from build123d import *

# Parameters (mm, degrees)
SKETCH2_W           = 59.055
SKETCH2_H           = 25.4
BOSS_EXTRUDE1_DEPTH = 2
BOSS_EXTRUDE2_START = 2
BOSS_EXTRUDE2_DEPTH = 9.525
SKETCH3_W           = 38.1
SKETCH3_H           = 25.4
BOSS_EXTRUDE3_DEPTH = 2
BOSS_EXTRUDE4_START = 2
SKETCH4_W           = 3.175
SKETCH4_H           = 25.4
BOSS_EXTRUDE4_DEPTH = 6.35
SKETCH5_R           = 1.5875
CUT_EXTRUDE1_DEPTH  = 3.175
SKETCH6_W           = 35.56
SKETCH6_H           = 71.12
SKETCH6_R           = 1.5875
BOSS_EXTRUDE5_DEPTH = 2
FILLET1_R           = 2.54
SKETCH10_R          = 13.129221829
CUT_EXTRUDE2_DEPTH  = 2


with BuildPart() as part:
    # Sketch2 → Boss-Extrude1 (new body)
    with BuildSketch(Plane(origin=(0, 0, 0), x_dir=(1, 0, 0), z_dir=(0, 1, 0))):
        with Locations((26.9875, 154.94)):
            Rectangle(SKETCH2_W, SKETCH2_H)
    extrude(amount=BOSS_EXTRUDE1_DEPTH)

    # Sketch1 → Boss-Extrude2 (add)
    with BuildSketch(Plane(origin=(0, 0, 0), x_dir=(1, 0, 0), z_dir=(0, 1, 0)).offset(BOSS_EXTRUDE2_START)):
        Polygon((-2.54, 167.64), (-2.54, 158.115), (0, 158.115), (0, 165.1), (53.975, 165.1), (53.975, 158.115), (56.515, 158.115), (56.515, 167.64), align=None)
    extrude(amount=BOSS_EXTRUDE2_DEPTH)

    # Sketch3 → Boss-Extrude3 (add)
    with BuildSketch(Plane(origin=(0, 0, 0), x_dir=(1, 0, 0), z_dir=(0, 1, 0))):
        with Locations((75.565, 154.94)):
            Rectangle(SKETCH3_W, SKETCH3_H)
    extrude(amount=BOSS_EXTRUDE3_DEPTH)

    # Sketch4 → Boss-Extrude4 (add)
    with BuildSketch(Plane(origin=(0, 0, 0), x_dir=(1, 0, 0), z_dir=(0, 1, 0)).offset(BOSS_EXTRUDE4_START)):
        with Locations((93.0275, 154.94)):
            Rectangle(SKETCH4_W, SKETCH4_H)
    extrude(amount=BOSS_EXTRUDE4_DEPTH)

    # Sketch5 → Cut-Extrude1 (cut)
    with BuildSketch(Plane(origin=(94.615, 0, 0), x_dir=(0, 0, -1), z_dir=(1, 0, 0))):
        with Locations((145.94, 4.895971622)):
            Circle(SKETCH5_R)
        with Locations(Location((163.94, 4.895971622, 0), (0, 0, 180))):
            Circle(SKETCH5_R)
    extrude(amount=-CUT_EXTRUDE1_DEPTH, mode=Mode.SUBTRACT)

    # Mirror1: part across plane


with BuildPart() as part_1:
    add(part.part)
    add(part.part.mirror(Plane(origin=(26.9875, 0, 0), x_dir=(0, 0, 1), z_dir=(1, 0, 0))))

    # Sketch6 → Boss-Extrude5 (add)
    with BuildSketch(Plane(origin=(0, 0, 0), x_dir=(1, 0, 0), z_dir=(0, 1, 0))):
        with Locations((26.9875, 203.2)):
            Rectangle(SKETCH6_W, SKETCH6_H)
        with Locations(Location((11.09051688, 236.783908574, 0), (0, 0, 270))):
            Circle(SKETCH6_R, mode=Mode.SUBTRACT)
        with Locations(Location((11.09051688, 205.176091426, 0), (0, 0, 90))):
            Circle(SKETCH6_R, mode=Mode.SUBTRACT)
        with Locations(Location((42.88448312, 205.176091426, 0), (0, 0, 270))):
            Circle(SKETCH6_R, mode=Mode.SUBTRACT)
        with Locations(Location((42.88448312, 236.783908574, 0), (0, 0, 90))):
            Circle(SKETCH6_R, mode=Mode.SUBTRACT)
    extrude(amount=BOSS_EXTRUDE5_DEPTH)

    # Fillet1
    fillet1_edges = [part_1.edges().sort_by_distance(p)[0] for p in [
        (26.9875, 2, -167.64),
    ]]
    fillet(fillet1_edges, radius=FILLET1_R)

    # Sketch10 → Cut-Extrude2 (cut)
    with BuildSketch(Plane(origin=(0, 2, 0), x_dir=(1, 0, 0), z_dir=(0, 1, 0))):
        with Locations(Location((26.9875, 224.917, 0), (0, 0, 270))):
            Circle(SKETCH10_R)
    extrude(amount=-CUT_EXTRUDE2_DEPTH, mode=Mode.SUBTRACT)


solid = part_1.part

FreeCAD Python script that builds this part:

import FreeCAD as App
import Part
import Sketcher

V = App.Vector
Q = App.Units.Quantity


def edges_at(feature, points):
    """Names of the edges that pass closest to the given points."""
    edges = feature.Shape.Edges
    near = lambda p: min(range(len(edges)), key=lambda i: edges[i].distToShape(Part.Vertex(*p))[0])
    return sorted({f"Edge{near(p) + 1}" for p in points})

doc = App.newDocument("Part")
params = doc.addObject("Spreadsheet::Sheet", "Params")
for row, (alias, value) in enumerate([
    ("sketch1_height", "1 in"),
    ("sketch1_width", "2.325 in"),
    ("pad1_length", "2 mm"),
    ("sketch2_width", "0.1 in"),
    ("sketch2_width2", "2.125 in"),
    ("sketch2_height", "0.375 in"),
    ("pad2_length", "0.375 in"),
    ("sketch3_height", "1 in"),
    ("sketch3_width", "1.5 in"),
    ("pad3_length", "2 mm"),
    ("sketch4_height", "1 in"),
    ("sketch4_width", "0.125 in"),
    ("pad4_length", "0.25 in"),
    ("sketch5_diameter", "0.125 in"),
    ("pocket1_length", "0.125 in"),
    ("sketch6_diameter", "0.125 in"),
    ("sketch6_width", "1.4 in"),
    ("sketch6_height", "2.8 in"),
    ("pad5_length", "2 mm"),
    ("fillet_radius", "0.1 in"),
    ("pocket2_length", "2 mm"),
], start=1):
    params.set(f"A{row}", alias)
    params.set(f"B{row}", "=" + value)
    params.setAlias(f"B{row}", alias)

body = doc.addObject("PartDesign::Body", "Body")

# Sketch on XZ plane
sketch1 = body.newObject("Sketcher::SketchObject", "Sketch")
sketch1.AttachmentSupport = (doc.getObject("XZ_Plane"), [""])
sketch1.MapMode = "FlatFace"
sketch1.addGeometry(Part.LineSegment(V(-3, -168, 0), V(-3, -142, 0)), False)
sketch1.addGeometry(Part.LineSegment(V(-3, -142, 0), V(57, -142, 0)), False)
sketch1.addGeometry(Part.LineSegment(V(57, -142, 0), V(57, -168, 0)), False)
sketch1.addGeometry(Part.LineSegment(V(57, -168, 0), V(-3, -168, 0)), False)
sketch1.addConstraint(Sketcher.Constraint("Coincident", 0, 2, 1, 1))
sketch1.addConstraint(Sketcher.Constraint("Coincident", 1, 2, 2, 1))
sketch1.addConstraint(Sketcher.Constraint("Coincident", 2, 2, 3, 1))
sketch1.addConstraint(Sketcher.Constraint("Coincident", 3, 2, 0, 1))
sketch1.addConstraint(Sketcher.Constraint("Vertical", 0))
sketch1.addConstraint(Sketcher.Constraint("Horizontal", 1))
sketch1.addConstraint(Sketcher.Constraint("Vertical", 2))
sketch1.addConstraint(Sketcher.Constraint("Horizontal", 3))
sketch1.addConstraint(Sketcher.Constraint("DistanceY", 0, 1, 0, 2, Q("1 in")))
sketch1.addConstraint(Sketcher.Constraint("DistanceX", 0, 2, -1, 1, Q("0.1 in")))
sketch1.addConstraint(Sketcher.Constraint("DistanceY", 0, 2, -1, 1, Q("5.6 in")))
sketch1.addConstraint(Sketcher.Constraint("DistanceX", 1, 1, 1, 2, Q("2.325 in")))
sketch1.setExpression("Constraints[8]", "Params.sketch1_height")
sketch1.setExpression("Constraints[11]", "Params.sketch1_width")
pad1 = body.newObject("PartDesign::Pad", "Pad")
pad1.Profile = sketch1
pad1.setExpression("Length", "Params.pad1_length")
pad1.Reversed = True

# Sketch on XZ plane
sketch2 = body.newObject("Sketcher::SketchObject", "Sketch001")
sketch2.AttachmentSupport = (doc.getObject("XZ_Plane"), [""])
sketch2.MapMode = "FlatFace"
sketch2.AttachmentOffset = App.Placement(V(0, 0, -2), App.Rotation())
sketch2.addGeometry(Part.LineSegment(V(-2.5, -167.6, 0), V(-2.5, -158.1, 0)), False)
sketch2.addGeometry(Part.LineSegment(V(-2.5, -158.1, 0), V(0, -158.1, 0)), False)
sketch2.addGeometry(Part.LineSegment(V(0, -158.1, 0), V(0, -165.1, 0)), False)
sketch2.addGeometry(Part.LineSegment(V(0, -165.1, 0), V(54, -165.1, 0)), False)
sketch2.addGeometry(Part.LineSegment(V(54, -165.1, 0), V(54, -158.1, 0)), False)
sketch2.addGeometry(Part.LineSegment(V(54, -158.1, 0), V(56.5, -158.1, 0)), False)
sketch2.addGeometry(Part.LineSegment(V(56.5, -158.1, 0), V(56.5, -167.6, 0)), False)
sketch2.addGeometry(Part.LineSegment(V(56.5, -167.6, 0), V(-2.5, -167.6, 0)), False)
sketch2.addConstraint(Sketcher.Constraint("Coincident", 0, 2, 1, 1))
sketch2.addConstraint(Sketcher.Constraint("Coincident", 1, 2, 2, 1))
sketch2.addConstraint(Sketcher.Constraint("Coincident", 2, 2, 3, 1))
sketch2.addConstraint(Sketcher.Constraint("Coincident", 3, 2, 4, 1))
sketch2.addConstraint(Sketcher.Constraint("Coincident", 4, 2, 5, 1))
sketch2.addConstraint(Sketcher.Constraint("Coincident", 5, 2, 6, 1))
sketch2.addConstraint(Sketcher.Constraint("Coincident", 6, 2, 7, 1))
sketch2.addConstraint(Sketcher.Constraint("Coincident", 7, 2, 0, 1))
sketch2.addConstraint(Sketcher.Constraint("Vertical", 0))
sketch2.addConstraint(Sketcher.Constraint("Horizontal", 1))
sketch2.addConstraint(Sketcher.Constraint("Vertical", 2))
sketch2.addConstraint(Sketcher.Constraint("Horizontal", 3))
sketch2.addConstraint(Sketcher.Constraint("Vertical", 4))
sketch2.addConstraint(Sketcher.Constraint("Horizontal", 5))
sketch2.addConstraint(Sketcher.Constraint("Vertical", 6))
sketch2.addConstraint(Sketcher.Constraint("Horizontal", 7))
sketch2.addConstraint(Sketcher.Constraint("PointOnObject", 1, 2, -2))
sketch2.addConstraint(Sketcher.Constraint("Horizontal", 1, 2, 4, 2))
sketch2.addConstraint(Sketcher.Constraint("Equal", 1, 5))
sketch2.addConstraint(Sketcher.Constraint("DistanceX", 1, 1, 1, 2, Q("0.1 in")))
sketch2.addConstraint(Sketcher.Constraint("DistanceY", 2, 2, -1, 1, Q("6.5 in")))
sketch2.addConstraint(Sketcher.Constraint("DistanceY", 6, 2, -1, 1, Q("6.6 in")))
sketch2.addConstraint(Sketcher.Constraint("DistanceX", 3, 1, 3, 2, Q("2.125 in")))
sketch2.addConstraint(Sketcher.Constraint("DistanceY", 0, 1, 0, 2, Q("0.375 in")))
sketch2.setExpression("Constraints[19]", "Params.sketch2_width")
sketch2.setExpression("Constraints[22]", "Params.sketch2_width2")
sketch2.setExpression("Constraints[23]", "Params.sketch2_height")
pad2 = body.newObject("PartDesign::Pad", "Pad001")
pad2.Profile = sketch2
pad2.setExpression("Length", "Params.pad2_length")
pad2.Reversed = True

# Sketch on XZ plane
sketch3 = body.newObject("Sketcher::SketchObject", "Sketch002")
sketch3.AttachmentSupport = (doc.getObject("XZ_Plane"), [""])
sketch3.MapMode = "FlatFace"
sketch3.addGeometry(Part.LineSegment(V(57, -168, 0), V(57, -142, 0)), False)
sketch3.addGeometry(Part.LineSegment(V(57, -142, 0), V(95, -142, 0)), False)
sketch3.addGeometry(Part.LineSegment(V(95, -142, 0), V(95, -168, 0)), False)
sketch3.addGeometry(Part.LineSegment(V(95, -168, 0), V(57, -168, 0)), False)
sketch3.addConstraint(Sketcher.Constraint("Coincident", 0, 2, 1, 1))
sketch3.addConstraint(Sketcher.Constraint("Coincident", 1, 2, 2, 1))
sketch3.addConstraint(Sketcher.Constraint("Coincident", 2, 2, 3, 1))
sketch3.addConstraint(Sketcher.Constraint("Coincident", 3, 2, 0, 1))
sketch3.addConstraint(Sketcher.Constraint("Vertical", 0))
sketch3.addConstraint(Sketcher.Constraint("Horizontal", 1))
sketch3.addConstraint(Sketcher.Constraint("Vertical", 2))
sketch3.addConstraint(Sketcher.Constraint("Horizontal", 3))
sketch3.addConstraint(Sketcher.Constraint("DistanceY", 0, 1, 0, 2, Q("1 in")))
sketch3.addConstraint(Sketcher.Constraint("DistanceX", 1, 1, 1, 2, Q("1.5 in")))
sketch3.addConstraint(Sketcher.Constraint("DistanceY", 0, 2, -1, 1, Q("5.6 in")))
sketch3.addConstraint(Sketcher.Constraint("DistanceX", -1, 1, 0, 2, Q("2.225 in")))
sketch3.setExpression("Constraints[8]", "Params.sketch3_height")
sketch3.setExpression("Constraints[9]", "Params.sketch3_width")
pad3 = body.newObject("PartDesign::Pad", "Pad002")
pad3.Profile = sketch3
pad3.setExpression("Length", "Params.pad3_length")
pad3.Reversed = True

# Sketch on XZ plane
sketch4 = body.newObject("Sketcher::SketchObject", "Sketch003")
sketch4.AttachmentSupport = (doc.getObject("XZ_Plane"), [""])
sketch4.MapMode = "FlatFace"
sketch4.AttachmentOffset = App.Placement(V(0, 0, -2), App.Rotation())
sketch4.addGeometry(Part.LineSegment(V(91.4, -167.6, 0), V(91.4, -142.2, 0)), False)
sketch4.addGeometry(Part.LineSegment(V(91.4, -142.2, 0), V(94.6, -142.2, 0)), False)
sketch4.addGeometry(Part.LineSegment(V(94.6, -142.2, 0), V(94.6, -167.6, 0)), False)
sketch4.addGeometry(Part.LineSegment(V(94.6, -167.6, 0), V(91.4, -167.6, 0)), False)
sketch4.addConstraint(Sketcher.Constraint("Coincident", 0, 2, 1, 1))
sketch4.addConstraint(Sketcher.Constraint("Coincident", 1, 2, 2, 1))
sketch4.addConstraint(Sketcher.Constraint("Coincident", 2, 2, 3, 1))
sketch4.addConstraint(Sketcher.Constraint("Coincident", 3, 2, 0, 1))
sketch4.addConstraint(Sketcher.Constraint("Vertical", 0))
sketch4.addConstraint(Sketcher.Constraint("Horizontal", 1))
sketch4.addConstraint(Sketcher.Constraint("Vertical", 2))
sketch4.addConstraint(Sketcher.Constraint("Horizontal", 3))
sketch4.addConstraint(Sketcher.Constraint("DistanceY", 0, 1, 0, 2, Q("1 in")))
sketch4.addConstraint(Sketcher.Constraint("DistanceX", -1, 1, 0, 2, Q("3.6 in")))
sketch4.addConstraint(Sketcher.Constraint("DistanceY", 0, 2, -1, 1, Q("5.6 in")))
sketch4.addConstraint(Sketcher.Constraint("DistanceX", 1, 1, 1, 2, Q("0.125 in")))
sketch4.setExpression("Constraints[8]", "Params.sketch4_height")
sketch4.setExpression("Constraints[11]", "Params.sketch4_width")
pad4 = body.newObject("PartDesign::Pad", "Pad003")
pad4.Profile = sketch4
pad4.setExpression("Length", "Params.pad4_length")
pad4.Reversed = True

# Sketch on YZ plane
sketch5 = body.newObject("Sketcher::SketchObject", "Sketch004")
sketch5.AttachmentSupport = (doc.getObject("YZ_Plane"), [""])
sketch5.MapMode = "FlatFace"
sketch5.AttachmentOffset = App.Placement(V(0, 0, 3.725 * 25.4), App.Rotation())
sketch5.addGeometry(Part.Circle(V(4.9, -145.9, 0), V(0, 0, 1), 1.6), False)
sketch5.addGeometry(Part.Circle(V(4.9, -163.9, 0), V(0, 0, 1), 1.6), False)
sketch5.addConstraint(Sketcher.Constraint("Equal", 0, 1))
sketch5.addConstraint(Sketcher.Constraint("Vertical", 0, 3, 1, 3))
sketch5.addConstraint(Sketcher.Constraint("Diameter", 0, Q("0.125 in")))
sketch5.addConstraint(Sketcher.Constraint("DistanceY", 0, 3, -1, 1, Q("145.94 mm")))
sketch5.addConstraint(Sketcher.Constraint("DistanceY", 1, 3, -1, 1, Q("163.94 mm")))
sketch5.addConstraint(Sketcher.Constraint("DistanceX", -1, 1, 0, 3, Q("4.895972 mm")))
sketch5.setExpression("Constraints[2]", "Params.sketch5_diameter")
pocket1 = body.newObject("PartDesign::Pocket", "Pocket")
pocket1.Profile = sketch5
pocket1.setExpression("Length", "Params.pocket1_length")
body2 = doc.addObject("PartDesign::Body", "Body001")
doc.recompute()

body2.BaseFeature = body
doc.recompute()

mirroring = doc.addObject("Part::Mirroring", "Mirroring")
mirroring.Source = body
mirroring.Base = V(26.9875, 0, 0)
mirroring.Normal = V(1, 0, 0)
body3 = doc.addObject("PartDesign::Body", "Body002")
body3.BaseFeature = mirroring
boolean = body2.newObject("PartDesign::Boolean", "Boolean")
boolean.Type = "Fuse"
boolean.addObjects([body3])
doc.recompute()

# Sketch on XZ plane
sketch6 = body2.newObject("Sketcher::SketchObject", "Sketch005")
sketch6.AttachmentSupport = (doc.getObject("XZ_Plane001"), [""])
sketch6.MapMode = "FlatFace"
sketch6.addGeometry(Part.LineSegment(V(9.2, -238.8, 0), V(9.2, -167.6, 0)), False)
sketch6.addGeometry(Part.LineSegment(V(9.2, -167.6, 0), V(44.8, -167.6, 0)), False)
sketch6.addGeometry(Part.LineSegment(V(44.8, -167.6, 0), V(44.8, -238.8, 0)), False)
sketch6.addGeometry(Part.LineSegment(V(44.8, -238.8, 0), V(9.2, -238.8, 0)), False)
sketch6.addGeometry(Part.Circle(V(11.1, -205.2, 0), V(0, 0, 1), 1.6), False)
sketch6.addGeometry(Part.Circle(V(42.9, -205.2, 0), V(0, 0, 1), 1.6), False)
sketch6.addGeometry(Part.Circle(V(11.1, -236.8, 0), V(0, 0, 1), 1.6), False)
sketch6.addGeometry(Part.Circle(V(42.9, -236.8, 0), V(0, 0, 1), 1.6), False)
sketch6.addConstraint(Sketcher.Constraint("Coincident", 0, 2, 1, 1))
sketch6.addConstraint(Sketcher.Constraint("Coincident", 1, 2, 2, 1))
sketch6.addConstraint(Sketcher.Constraint("Coincident", 2, 2, 3, 1))
sketch6.addConstraint(Sketcher.Constraint("Coincident", 3, 2, 0, 1))
sketch6.addConstraint(Sketcher.Constraint("Vertical", 0))
sketch6.addConstraint(Sketcher.Constraint("Horizontal", 1))
sketch6.addConstraint(Sketcher.Constraint("Vertical", 2))
sketch6.addConstraint(Sketcher.Constraint("Horizontal", 3))
sketch6.addConstraint(Sketcher.Constraint("Equal", 4, 5))
sketch6.addConstraint(Sketcher.Constraint("Equal", 5, 6))
sketch6.addConstraint(Sketcher.Constraint("Equal", 6, 7))
sketch6.addConstraint(Sketcher.Constraint("Horizontal", 4, 3, 5, 3))
sketch6.addConstraint(Sketcher.Constraint("Horizontal", 6, 3, 7, 3))
sketch6.addConstraint(Sketcher.Constraint("Vertical", 4, 3, 6, 3))
sketch6.addConstraint(Sketcher.Constraint("Vertical", 5, 3, 7, 3))
sketch6.addConstraint(Sketcher.Constraint("Diameter", 4, Q("0.125 in")))
sketch6.addConstraint(Sketcher.Constraint("DistanceX", 1, 1, 1, 2, Q("1.4 in")))
sketch6.addConstraint(Sketcher.Constraint("DistanceY", 0, 1, 0, 2, Q("2.8 in")))
sketch6.addConstraint(Sketcher.Constraint("DistanceY", 0, 2, -1, 1, Q("6.6 in")))
sketch6.addConstraint(Sketcher.Constraint("DistanceX", -1, 1, 0, 2, Q("0.3625 in")))
sketch6.addConstraint(Sketcher.Constraint("DistanceY", 4, 3, -1, 1, Q("205.176091 mm")))
sketch6.addConstraint(Sketcher.Constraint("DistanceY", 6, 3, -1, 1, Q("236.783909 mm")))
sketch6.addConstraint(Sketcher.Constraint("DistanceX", -1, 1, 4, 3, Q("11.090517 mm")))
sketch6.addConstraint(Sketcher.Constraint("DistanceX", -1, 1, 5, 3, Q("42.884483 mm")))
sketch6.setExpression("Constraints[15]", "Params.sketch6_diameter")
sketch6.setExpression("Constraints[16]", "Params.sketch6_width")
sketch6.setExpression("Constraints[17]", "Params.sketch6_height")
pad5 = body2.newObject("PartDesign::Pad", "Pad004")
pad5.Profile = sketch6
pad5.setExpression("Length", "Params.pad5_length")
pad5.Reversed = True
doc.recompute()

fillet = body2.newObject("PartDesign::Fillet", "Fillet")
fillet.Base = (pad5, edges_at(pad5, [(26.988, 2, -167.64)]))
fillet.setExpression("Radius", "Params.fillet_radius")

# Sketch on XZ plane
sketch7 = body2.newObject("Sketcher::SketchObject", "Sketch006")
sketch7.AttachmentSupport = (doc.getObject("XZ_Plane001"), [""])
sketch7.MapMode = "FlatFace"
sketch7.AttachmentOffset = App.Placement(V(0, 0, -2), App.Rotation())
sketch7.addGeometry(Part.Circle(V(27, -225, 0), V(0, 0, 1), 13), False)
sketch7.addConstraint(Sketcher.Constraint("DistanceX", -1, 1, 0, 3, Q("1.0625 in")))
sketch7.addConstraint(Sketcher.Constraint("DistanceY", 0, 3, -1, 1, Q("8.855 in")))
sketch7.addConstraint(Sketcher.Constraint("Diameter", 0, Q("26.258444 mm")))
pocket2 = body2.newObject("PartDesign::Pocket", "Pocket001")
pocket2.Profile = sketch7
pocket2.setExpression("Length", "Params.pocket2_length")
pocket2.Reversed = True
mirroring.Visibility = False

doc.recompute()
